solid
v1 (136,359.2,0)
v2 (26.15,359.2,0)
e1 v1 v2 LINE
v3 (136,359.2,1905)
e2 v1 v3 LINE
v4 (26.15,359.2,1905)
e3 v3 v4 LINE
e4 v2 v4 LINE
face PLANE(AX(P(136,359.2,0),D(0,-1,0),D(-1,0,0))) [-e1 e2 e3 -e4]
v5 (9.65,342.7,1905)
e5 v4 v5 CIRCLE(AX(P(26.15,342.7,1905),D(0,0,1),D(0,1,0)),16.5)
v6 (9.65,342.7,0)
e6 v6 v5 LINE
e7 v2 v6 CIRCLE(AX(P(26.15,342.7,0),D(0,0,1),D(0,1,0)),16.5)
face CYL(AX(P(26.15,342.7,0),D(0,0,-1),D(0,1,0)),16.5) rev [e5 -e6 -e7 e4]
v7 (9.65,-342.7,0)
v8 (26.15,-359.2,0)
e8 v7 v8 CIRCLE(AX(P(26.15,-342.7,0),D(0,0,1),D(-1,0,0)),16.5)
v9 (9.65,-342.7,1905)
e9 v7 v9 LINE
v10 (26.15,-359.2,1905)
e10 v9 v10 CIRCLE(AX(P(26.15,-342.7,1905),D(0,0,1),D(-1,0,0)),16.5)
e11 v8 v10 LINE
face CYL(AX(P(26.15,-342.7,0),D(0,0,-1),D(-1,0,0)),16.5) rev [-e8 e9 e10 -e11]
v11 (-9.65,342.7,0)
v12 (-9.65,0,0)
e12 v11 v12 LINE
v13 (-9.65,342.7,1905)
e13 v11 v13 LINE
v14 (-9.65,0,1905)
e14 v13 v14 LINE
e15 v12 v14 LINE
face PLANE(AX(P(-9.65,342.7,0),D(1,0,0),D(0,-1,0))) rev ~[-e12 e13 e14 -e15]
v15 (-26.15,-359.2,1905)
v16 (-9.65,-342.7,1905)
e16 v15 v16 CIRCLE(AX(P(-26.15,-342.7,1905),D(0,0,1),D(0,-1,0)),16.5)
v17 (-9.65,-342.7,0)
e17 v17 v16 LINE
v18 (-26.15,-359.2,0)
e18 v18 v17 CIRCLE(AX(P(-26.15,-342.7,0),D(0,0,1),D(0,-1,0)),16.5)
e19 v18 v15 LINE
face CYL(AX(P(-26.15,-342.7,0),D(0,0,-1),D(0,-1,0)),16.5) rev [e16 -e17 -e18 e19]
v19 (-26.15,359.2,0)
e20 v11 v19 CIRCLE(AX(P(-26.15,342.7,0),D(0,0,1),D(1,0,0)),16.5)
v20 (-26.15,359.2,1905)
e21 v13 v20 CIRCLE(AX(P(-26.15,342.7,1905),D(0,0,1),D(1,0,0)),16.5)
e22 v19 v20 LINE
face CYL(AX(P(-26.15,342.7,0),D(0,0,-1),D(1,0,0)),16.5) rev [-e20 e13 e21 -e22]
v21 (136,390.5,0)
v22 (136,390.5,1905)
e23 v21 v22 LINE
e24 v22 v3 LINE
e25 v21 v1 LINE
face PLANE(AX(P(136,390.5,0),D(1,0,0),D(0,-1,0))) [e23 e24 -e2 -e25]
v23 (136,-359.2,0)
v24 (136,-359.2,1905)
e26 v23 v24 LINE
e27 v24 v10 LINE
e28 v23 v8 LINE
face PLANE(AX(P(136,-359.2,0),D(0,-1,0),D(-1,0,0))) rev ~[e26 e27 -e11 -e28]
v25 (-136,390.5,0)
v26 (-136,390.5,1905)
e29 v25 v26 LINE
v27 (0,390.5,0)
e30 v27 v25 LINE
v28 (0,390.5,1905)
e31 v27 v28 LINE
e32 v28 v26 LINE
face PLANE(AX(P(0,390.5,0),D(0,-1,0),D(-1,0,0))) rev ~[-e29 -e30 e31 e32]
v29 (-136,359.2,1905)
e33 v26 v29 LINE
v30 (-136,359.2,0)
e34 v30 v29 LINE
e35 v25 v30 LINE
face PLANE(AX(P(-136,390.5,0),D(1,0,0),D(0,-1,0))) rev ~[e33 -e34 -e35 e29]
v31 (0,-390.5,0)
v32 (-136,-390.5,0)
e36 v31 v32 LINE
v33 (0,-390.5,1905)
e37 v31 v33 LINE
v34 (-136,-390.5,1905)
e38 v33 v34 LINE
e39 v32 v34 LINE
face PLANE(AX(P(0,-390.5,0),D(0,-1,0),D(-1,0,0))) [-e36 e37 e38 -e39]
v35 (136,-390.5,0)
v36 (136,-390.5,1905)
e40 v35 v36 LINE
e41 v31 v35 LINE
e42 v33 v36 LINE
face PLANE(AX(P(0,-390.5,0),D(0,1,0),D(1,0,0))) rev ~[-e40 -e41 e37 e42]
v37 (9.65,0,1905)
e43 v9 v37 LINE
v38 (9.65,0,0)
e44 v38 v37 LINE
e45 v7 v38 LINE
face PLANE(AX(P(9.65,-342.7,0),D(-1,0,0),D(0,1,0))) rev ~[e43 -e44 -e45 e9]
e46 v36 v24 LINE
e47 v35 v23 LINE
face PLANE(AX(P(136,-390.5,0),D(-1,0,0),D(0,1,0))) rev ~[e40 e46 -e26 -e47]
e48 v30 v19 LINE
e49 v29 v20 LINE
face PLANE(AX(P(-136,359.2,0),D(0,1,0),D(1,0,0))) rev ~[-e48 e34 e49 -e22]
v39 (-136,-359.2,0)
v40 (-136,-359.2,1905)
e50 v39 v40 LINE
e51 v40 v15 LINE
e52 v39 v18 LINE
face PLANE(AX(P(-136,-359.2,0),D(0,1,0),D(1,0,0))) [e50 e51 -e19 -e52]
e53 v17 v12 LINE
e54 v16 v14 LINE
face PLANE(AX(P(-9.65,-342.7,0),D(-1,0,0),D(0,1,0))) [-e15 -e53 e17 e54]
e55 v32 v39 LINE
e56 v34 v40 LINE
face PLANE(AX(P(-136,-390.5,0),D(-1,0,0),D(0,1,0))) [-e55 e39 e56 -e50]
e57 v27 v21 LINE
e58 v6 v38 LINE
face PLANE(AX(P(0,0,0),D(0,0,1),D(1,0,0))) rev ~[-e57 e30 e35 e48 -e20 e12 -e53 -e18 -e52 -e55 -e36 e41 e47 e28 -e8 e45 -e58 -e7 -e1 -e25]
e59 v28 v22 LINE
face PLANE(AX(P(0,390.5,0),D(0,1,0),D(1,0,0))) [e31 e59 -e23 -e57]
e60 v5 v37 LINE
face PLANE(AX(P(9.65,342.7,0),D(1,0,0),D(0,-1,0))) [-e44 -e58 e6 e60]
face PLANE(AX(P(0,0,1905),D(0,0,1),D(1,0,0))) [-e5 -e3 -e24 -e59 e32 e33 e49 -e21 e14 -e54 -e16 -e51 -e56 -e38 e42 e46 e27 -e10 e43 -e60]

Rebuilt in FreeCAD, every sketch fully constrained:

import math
import FreeCAD as App
import Part
import Sketcher
Q = App.Units.Quantity

doc = App.newDocument("Part")
body = doc.addObject("PartDesign::Body", "Body")

sketch1 = body.newObject("Sketcher::SketchObject", "Sketch")
sketch1.AttachmentSupport = (doc.getObject("XY_Plane"), [""])
sketch1.MapMode = "FlatFace"
sketch1.addGeometry([
    Part.LineSegment(App.Vector(-136, -359.2, 0), App.Vector(-136, -390.5, 0)),
    Part.LineSegment(App.Vector(-136, -390.5, 0), App.Vector(136, -390.5, 0)),
    Part.LineSegment(App.Vector(136, -390.5, 0), App.Vector(136, -359.2, 0)),
    Part.LineSegment(App.Vector(136, -359.2, 0), App.Vector(26.15, -359.2, 0)),
    Part.ArcOfCircle(Part.Circle(App.Vector(26.15, -342.7, 0), App.Vector(0, 0, 1), 16.5), math.radians(180), math.radians(270)),
    Part.LineSegment(App.Vector(9.65, -342.7, 0), App.Vector(9.65, 342.7, 0)),
    Part.ArcOfCircle(Part.Circle(App.Vector(26.15, 342.7, 0), App.Vector(0, 0, 1), 16.5), math.radians(90), math.radians(180)),
    Part.LineSegment(App.Vector(26.15, 359.2, 0), App.Vector(136, 359.2, 0)),
    Part.LineSegment(App.Vector(136, 359.2, 0), App.Vector(136, 390.5, 0)),
    Part.LineSegment(App.Vector(136, 390.5, 0), App.Vector(-136, 390.5, 0)),
    Part.LineSegment(App.Vector(-136, 390.5, 0), App.Vector(-136, 359.2, 0)),
    Part.LineSegment(App.Vector(-136, 359.2, 0), App.Vector(-26.15, 359.2, 0)),
    Part.ArcOfCircle(Part.Circle(App.Vector(-26.15, 342.7, 0), App.Vector(0, 0, 1), 16.5), math.radians(0), math.radians(90)),
    Part.LineSegment(App.Vector(-9.65, 342.7, 0), App.Vector(-9.65, -342.7, 0)),
    Part.ArcOfCircle(Part.Circle(App.Vector(-26.15, -342.7, 0), App.Vector(0, 0, 1), 16.5), math.radians(-90), math.radians(0)),
    Part.LineSegment(App.Vector(-26.15, -359.2, 0), App.Vector(-136, -359.2, 0)),
], False)
sketch1.addConstraint([
    Sketcher.Constraint("Coincident", 0, 2, 1, 1),
    Sketcher.Constraint("Coincident", 1, 2, 2, 1),
    Sketcher.Constraint("Coincident", 2, 2, 3, 1),
    Sketcher.Constraint("Tangent", 3, 2, 4, 2),
    Sketcher.Constraint("Tangent", 4, 1, 5, 1),
    Sketcher.Constraint("Tangent", 5, 2, 6, 2),
    Sketcher.Constraint("Tangent", 6, 1, 7, 1),
    Sketcher.Constraint("Coincident", 7, 2, 8, 1),
    Sketcher.Constraint("Coincident", 8, 2, 9, 1),
    Sketcher.Constraint("Coincident", 9, 2, 10, 1),
    Sketcher.Constraint("Coincident", 10, 2, 11, 1),
    Sketcher.Constraint("Tangent", 11, 2, 12, 2),
    Sketcher.Constraint("Tangent", 12, 1, 13, 1),
    Sketcher.Constraint("Tangent", 13, 2, 14, 2),
    Sketcher.Constraint("Tangent", 14, 1, 15, 1),
    Sketcher.Constraint("Coincident", 15, 2, 0, 1),
    Sketcher.Constraint("Vertical", 0),
    Sketcher.Constraint("Horizontal", 1),
    Sketcher.Constraint("Vertical", 2),
    Sketcher.Constraint("Horizontal", 3),
    Sketcher.Constraint("Vertical", 5),
    Sketcher.Constraint("Horizontal", 7),
    Sketcher.Constraint("Vertical", 8),
    Sketcher.Constraint("Horizontal", 9),
    Sketcher.Constraint("Vertical", 10),
    Sketcher.Constraint("Horizontal", 11),
    Sketcher.Constraint("Vertical", 13),
    Sketcher.Constraint("Horizontal", 15),
    Sketcher.Constraint("Equal", 4, 6),
    Sketcher.Constraint("Equal", 6, 12),
    Sketcher.Constraint("Equal", 12, 14),
    Sketcher.Constraint("Symmetric", 4, 3, 12, 3, -1, 1),
    Sketcher.Constraint("Symmetric", 0, 2, 8, 2, -1, 1),
    Sketcher.Constraint("Symmetric", 7, 2, 10, 2, -2),
    Sketcher.Constraint("Symmetric", 2, 2, 15, 2, -2),
    Sketcher.Constraint("Radius", 4, Q("16.5 mm")),
    Sketcher.Constraint("DistanceY", 0, 2, 0, 1, Q("31.3 mm")),
    Sketcher.Constraint("DistanceX", 0, 2, -1, 1, Q("136 mm")),
    Sketcher.Constraint("DistanceY", 0, 2, -1, 1, Q("390.5 mm")),
    Sketcher.Constraint("DistanceX", -1, 1, 4, 1, Q("9.65 mm")),
])
pad1 = body.newObject("PartDesign::Pad", "Pad")
pad1.Profile = sketch1
pad1.Length = 1905

doc.recompute()
